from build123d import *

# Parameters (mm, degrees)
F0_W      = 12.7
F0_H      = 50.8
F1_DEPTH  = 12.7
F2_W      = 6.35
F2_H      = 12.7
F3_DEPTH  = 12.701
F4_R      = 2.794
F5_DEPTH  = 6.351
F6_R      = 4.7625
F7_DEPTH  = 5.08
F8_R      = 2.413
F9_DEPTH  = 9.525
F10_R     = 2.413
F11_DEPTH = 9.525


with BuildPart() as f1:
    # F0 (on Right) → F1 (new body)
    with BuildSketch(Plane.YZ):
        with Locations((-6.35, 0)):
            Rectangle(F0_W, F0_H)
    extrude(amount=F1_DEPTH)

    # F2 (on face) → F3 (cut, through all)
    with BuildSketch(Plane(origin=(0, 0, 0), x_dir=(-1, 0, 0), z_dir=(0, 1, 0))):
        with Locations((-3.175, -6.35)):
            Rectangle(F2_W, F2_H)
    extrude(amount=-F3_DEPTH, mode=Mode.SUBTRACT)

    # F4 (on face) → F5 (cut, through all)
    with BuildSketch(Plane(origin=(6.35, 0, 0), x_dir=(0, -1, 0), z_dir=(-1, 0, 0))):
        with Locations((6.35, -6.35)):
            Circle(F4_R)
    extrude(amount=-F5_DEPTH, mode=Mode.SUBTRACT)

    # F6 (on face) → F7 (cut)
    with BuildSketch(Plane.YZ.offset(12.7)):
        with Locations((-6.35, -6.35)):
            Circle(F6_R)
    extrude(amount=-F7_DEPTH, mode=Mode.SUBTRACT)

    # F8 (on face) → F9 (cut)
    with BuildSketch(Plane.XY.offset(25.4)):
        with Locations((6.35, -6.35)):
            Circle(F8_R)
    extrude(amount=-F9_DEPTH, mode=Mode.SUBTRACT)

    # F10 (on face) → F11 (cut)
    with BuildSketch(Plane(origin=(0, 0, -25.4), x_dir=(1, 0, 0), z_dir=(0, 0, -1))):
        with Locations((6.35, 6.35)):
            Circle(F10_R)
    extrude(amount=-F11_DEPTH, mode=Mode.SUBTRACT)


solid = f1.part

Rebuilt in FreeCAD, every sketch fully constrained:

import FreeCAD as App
import Part
import Sketcher

V = App.Vector
Q = App.Units.Quantity


def add_polygon(sketch, points):
    """Adds a closed chain of lines whose ends are joined by coincident constraints."""
    first, n = sketch.GeometryCount, len(points)
    for a, b in zip(points, points[1:] + points[:1]):
        sketch.addGeometry(Part.LineSegment(App.Vector(*a, 0), App.Vector(*b, 0)), False)
    for i in range(n):
        sketch.addConstraint(Sketcher.Constraint("Coincident", first + i, 2, first + (i + 1) % n, 1))

doc = App.newDocument("Part")
body = doc.addObject("PartDesign::Body", "Body")

sketch1 = body.newObject("Sketcher::SketchObject", "Sketch")
sketch1.AttachmentSupport = (doc.getObject("YZ_Plane"), [""])
sketch1.MapMode = "FlatFace"
add_polygon(sketch1, [(-13, 25), (-13, -25), (0, -25), (0, 25)])
sketch1.addConstraint(Sketcher.Constraint("Vertical", 0))
sketch1.addConstraint(Sketcher.Constraint("Horizontal", 1))
sketch1.addConstraint(Sketcher.Constraint("Vertical", 2))
sketch1.addConstraint(Sketcher.Constraint("Horizontal", 3))
sketch1.addConstraint(Sketcher.Constraint("Symmetric", 1, 2, 2, 2, -1, 1))
sketch1.addConstraint(Sketcher.Constraint("DistanceY", 0, 2, 0, 1, Q("2 in")))
sketch1.addConstraint(Sketcher.Constraint("DistanceX", 1, 1, 1, 2, Q("0.5 in")))
pad1 = body.newObject("PartDesign::Pad", "Pad")
pad1.Profile = sketch1
pad1.Length = Q("0.5 in")

sketch2 = body.newObject("Sketcher::SketchObject", "Sketch001")
sketch2.AttachmentSupport = (doc.getObject("XZ_Plane"), [""])
sketch2.MapMode = "FlatFace"
add_polygon(sketch2, [(6, 0), (6, -13), (0, -13), (0, 0)])
sketch2.addConstraint(Sketcher.Constraint("Vertical", 0))
sketch2.addConstraint(Sketcher.Constraint("Horizontal", 1))
sketch2.addConstraint(Sketcher.Constraint("Vertical", 2))
sketch2.addConstraint(Sketcher.Constraint("Horizontal", 3))
sketch2.addConstraint(Sketcher.Constraint("Coincident", 2, 2, -1, 1))
sketch2.addConstraint(Sketcher.Constraint("DistanceY", 0, 2, 0, 1, Q("0.5 in")))
sketch2.addConstraint(Sketcher.Constraint("DistanceX", 1, 2, 1, 1, Q("0.25 in")))
pocket1 = body.newObject("PartDesign::Pocket", "Pocket")
pocket1.Profile = sketch2
pocket1.Type = "ThroughAll"
pocket1.Reversed = True

sketch3 = body.newObject("Sketcher::SketchObject", "Sketch002")
sketch3.AttachmentSupport = (doc.getObject("YZ_Plane"), [""])
sketch3.MapMode = "FlatFace"
sketch3.AttachmentOffset = App.Placement(V(0, 0, 0.25 * 25.4), App.Rotation())
sketch3.addGeometry(Part.Circle(V(-6.3, -6.3, 0), V(0, 0, 1), 2.8), False)
sketch3.addConstraint(Sketcher.Constraint("Diameter", 0, Q("0.22 in")))
sketch3.addConstraint(Sketcher.Constraint("DistanceX", 0, 3, -1, 1, Q("0.25 in")))
sketch3.addConstraint(Sketcher.Constraint("DistanceY", 0, 3, -1, 1, Q("0.25 in")))
pocket2 = body.newObject("PartDesign::Pocket", "Pocket001")
pocket2.Profile = sketch3
pocket2.Type = "ThroughAll"
pocket2.Reversed = True

sketch4 = body.newObject("Sketcher::SketchObject", "Sketch003")
sketch4.AttachmentSupport = (doc.getObject("YZ_Plane"), [""])
sketch4.MapMode = "FlatFace"
sketch4.AttachmentOffset = App.Placement(V(0, 0, 0.5 * 25.4), App.Rotation())
sketch4.addGeometry(Part.Circle(V(-6.3, -6.3, 0), V(0, 0, 1), 4.8), False)
sketch4.addConstraint(Sketcher.Constraint("Diameter", 0, Q("0.375 in")))
sketch4.addConstraint(Sketcher.Constraint("DistanceX", 0, 3, -1, 1, Q("0.25 in")))
sketch4.addConstraint(Sketcher.Constraint("DistanceY", 0, 3, -1, 1, Q("0.25 in")))
pocket3 = body.newObject("PartDesign::Pocket", "Pocket002")
pocket3.Profile = sketch4
pocket3.Length = Q("0.2 in")

sketch5 = body.newObject("Sketcher::SketchObject", "Sketch004")
sketch5.AttachmentSupport = (doc.getObject("XY_Plane"), [""])
sketch5.MapMode = "FlatFace"
sketch5.AttachmentOffset = App.Placement(V(0, 0, 1 * 25.4), App.Rotation())
sketch5.addGeometry(Part.Circle(V(6.3, -6.3, 0), V(0, 0, 1), 2.4), False)
sketch5.addConstraint(Sketcher.Constraint("Diameter", 0, Q("0.19 in")))
sketch5.addConstraint(Sketcher.Constraint("DistanceX", -1, 1, 0, 3, Q("0.25 in")))
sketch5.addConstraint(Sketcher.Constraint("DistanceY", 0, 3, -1, 1, Q("0.25 in")))
pocket4 = body.newObject("PartDesign::Pocket", "Pocket003")
pocket4.Profile = sketch5
pocket4.Length = Q("0.375 in")

sketch6 = body.newObject("Sketcher::SketchObject", "Sketch005")
sketch6.AttachmentSupport = (doc.getObject("XY_Plane"), [""])
sketch6.MapMode = "FlatFace"
sketch6.AttachmentOffset = App.Placement(V(0, 0, -1 * 25.4), App.Rotation())
sketch6.addGeometry(Part.Circle(V(6.3, -6.3, 0), V(0, 0, 1), 2.4), False)
sketch6.addConstraint(Sketcher.Constraint("Diameter", 0, Q("0.19 in")))
sketch6.addConstraint(Sketcher.Constraint("DistanceX", -1, 1, 0, 3, Q("0.25 in")))
sketch6.addConstraint(Sketcher.Constraint("DistanceY", 0, 3, -1, 1, Q("0.25 in")))
pocket5 = body.newObject("PartDesign::Pocket", "Pocket004")
pocket5.Profile = sketch6
pocket5.Length = Q("0.375 in")
pocket5.Reversed = True

doc.recompute()
